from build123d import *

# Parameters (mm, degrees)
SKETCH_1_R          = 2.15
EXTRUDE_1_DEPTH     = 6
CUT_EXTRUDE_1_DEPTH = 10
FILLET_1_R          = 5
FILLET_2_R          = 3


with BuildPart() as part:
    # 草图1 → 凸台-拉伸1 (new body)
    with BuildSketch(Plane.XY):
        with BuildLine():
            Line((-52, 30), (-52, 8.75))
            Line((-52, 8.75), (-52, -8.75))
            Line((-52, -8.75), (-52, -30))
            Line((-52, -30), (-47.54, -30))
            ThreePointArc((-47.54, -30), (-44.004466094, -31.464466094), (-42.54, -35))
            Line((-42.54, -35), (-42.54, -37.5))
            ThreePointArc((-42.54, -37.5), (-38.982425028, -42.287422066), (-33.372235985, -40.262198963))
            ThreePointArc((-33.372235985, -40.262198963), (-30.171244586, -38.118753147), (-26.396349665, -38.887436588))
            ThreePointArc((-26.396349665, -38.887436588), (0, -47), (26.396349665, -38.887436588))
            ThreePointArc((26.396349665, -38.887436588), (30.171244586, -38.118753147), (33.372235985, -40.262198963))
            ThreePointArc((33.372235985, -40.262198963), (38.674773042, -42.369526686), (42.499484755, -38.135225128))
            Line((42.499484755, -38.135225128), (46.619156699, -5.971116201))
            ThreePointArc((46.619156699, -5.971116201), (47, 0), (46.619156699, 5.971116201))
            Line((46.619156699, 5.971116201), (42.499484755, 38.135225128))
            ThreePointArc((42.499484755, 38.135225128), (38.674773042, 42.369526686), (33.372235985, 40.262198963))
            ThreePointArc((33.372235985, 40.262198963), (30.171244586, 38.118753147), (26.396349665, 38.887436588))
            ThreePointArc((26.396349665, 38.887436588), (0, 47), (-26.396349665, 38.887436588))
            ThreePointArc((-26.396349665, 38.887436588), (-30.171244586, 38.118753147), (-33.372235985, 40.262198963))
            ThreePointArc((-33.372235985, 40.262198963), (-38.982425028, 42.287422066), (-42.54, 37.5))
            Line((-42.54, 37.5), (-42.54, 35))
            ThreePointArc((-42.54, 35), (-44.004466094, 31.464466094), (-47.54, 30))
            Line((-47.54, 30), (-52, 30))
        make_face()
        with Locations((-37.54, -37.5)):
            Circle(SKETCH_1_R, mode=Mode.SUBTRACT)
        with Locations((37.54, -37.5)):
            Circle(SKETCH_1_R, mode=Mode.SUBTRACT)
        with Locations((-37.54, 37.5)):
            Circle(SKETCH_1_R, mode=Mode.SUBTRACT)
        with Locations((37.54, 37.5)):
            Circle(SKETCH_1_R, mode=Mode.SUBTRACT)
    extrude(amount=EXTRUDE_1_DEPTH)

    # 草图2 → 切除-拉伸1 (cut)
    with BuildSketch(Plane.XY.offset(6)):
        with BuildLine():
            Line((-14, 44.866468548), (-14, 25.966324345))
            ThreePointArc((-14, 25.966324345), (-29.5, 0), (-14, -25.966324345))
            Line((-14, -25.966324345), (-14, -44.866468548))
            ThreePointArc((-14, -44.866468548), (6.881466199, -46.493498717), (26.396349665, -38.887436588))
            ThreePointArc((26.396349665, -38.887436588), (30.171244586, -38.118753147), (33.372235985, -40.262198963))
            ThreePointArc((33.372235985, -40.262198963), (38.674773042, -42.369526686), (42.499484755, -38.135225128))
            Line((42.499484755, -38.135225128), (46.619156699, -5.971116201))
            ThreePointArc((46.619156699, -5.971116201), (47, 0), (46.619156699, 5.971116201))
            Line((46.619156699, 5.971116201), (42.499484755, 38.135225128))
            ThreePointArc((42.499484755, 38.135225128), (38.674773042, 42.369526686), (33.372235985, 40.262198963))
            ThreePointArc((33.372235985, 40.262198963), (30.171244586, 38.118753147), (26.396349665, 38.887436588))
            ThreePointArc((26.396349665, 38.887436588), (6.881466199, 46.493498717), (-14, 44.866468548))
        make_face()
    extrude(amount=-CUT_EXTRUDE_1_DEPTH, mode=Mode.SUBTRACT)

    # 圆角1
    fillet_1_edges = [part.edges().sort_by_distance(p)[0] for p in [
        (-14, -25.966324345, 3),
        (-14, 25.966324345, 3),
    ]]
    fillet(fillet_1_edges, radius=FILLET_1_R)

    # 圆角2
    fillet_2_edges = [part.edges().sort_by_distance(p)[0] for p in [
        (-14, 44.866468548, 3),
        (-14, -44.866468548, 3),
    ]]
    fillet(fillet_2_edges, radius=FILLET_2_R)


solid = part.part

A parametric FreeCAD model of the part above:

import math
import FreeCAD as App
import Part
import Sketcher
Q = App.Units.Quantity


def edges_at(feature, points):
    """Names of the edges that pass closest to the given points."""
    edges = feature.Shape.Edges
    near = lambda p: min(range(len(edges)), key=lambda i: edges[i].distToShape(Part.Vertex(*p))[0])
    return sorted({f"Edge{near(p) + 1}" for p in points})

doc = App.newDocument("Part")
body = doc.addObject("PartDesign::Body", "Body")

# Sketch on XY plane
sketch1 = body.newObject("Sketcher::SketchObject", "Sketch")
sketch1.AttachmentSupport = (doc.getObject("XY_Plane"), [""])
sketch1.MapMode = "FlatFace"
sketch1.addGeometry(Part.LineSegment(App.Vector(-52, 30, 0), App.Vector(-52, -30, 0)), False)
sketch1.addGeometry(Part.LineSegment(App.Vector(-52, -30, 0), App.Vector(-47.5, -30, 0)), False)
sketch1.addGeometry(Part.ArcOfCircle(Part.Circle(App.Vector(-47.5, -35, 0), App.Vector(0, 0, 1), 5), math.radians(0), math.radians(90)), False)
sketch1.addGeometry(Part.LineSegment(App.Vector(-42.5, -35, 0), App.Vector(-42.5, -37.5, 0)), False)
sketch1.addGeometry(Part.ArcOfCircle(Part.Circle(App.Vector(-37.5, -37.5, 0), App.Vector(0, 0, 1), 5), math.radians(180), math.radians(326)), False)
sketch1.addGeometry(Part.ArcOfCircle(Part.Circle(App.Vector(-29.2, -43, 0), App.Vector(0, 0, 1), 5), math.radians(56), math.radians(146)), False)
sketch1.addGeometry(Part.ArcOfCircle(Part.Circle(App.Vector(0, 0, 0), App.Vector(0, 0, 1), 47), math.radians(-124), math.radians(-56)), False)
sketch1.addGeometry(Part.ArcOfCircle(Part.Circle(App.Vector(29.2, -43, 0), App.Vector(0, 0, 1), 5), math.radians(34), math.radians(124)), False)
sketch1.addGeometry(Part.ArcOfCircle(Part.Circle(App.Vector(37.5, -37.5, 0), App.Vector(0, 0, 1), 5), math.radians(-146), math.radians(-7)), False)
sketch1.addGeometry(Part.LineSegment(App.Vector(42.5, -38.1, 0), App.Vector(46.6, -6, 0)), False)
sketch1.addGeometry(Part.ArcOfCircle(Part.Circle(App.Vector(0, 0, 0), App.Vector(0, 0, 1), 47), math.radians(-7.3), math.radians(7.3)), False)
sketch1.addGeometry(Part.LineSegment(App.Vector(46.6, 6, 0), App.Vector(42.5, 38.1, 0)), False)
sketch1.addGeometry(Part.ArcOfCircle(Part.Circle(App.Vector(37.5, 37.5, 0), App.Vector(0, 0, 1), 5), math.radians(7), math.radians(146)), False)
sketch1.addGeometry(Part.ArcOfCircle(Part.Circle(App.Vector(29.2, 43, 0), App.Vector(0, 0, 1), 5), math.radians(-124), math.radians(-34)), False)
sketch1.addGeometry(Part.ArcOfCircle(Part.Circle(App.Vector(0, 0, 0), App.Vector(0, 0, 1), 47), math.radians(56), math.radians(124)), False)
sketch1.addGeometry(Part.ArcOfCircle(Part.Circle(App.Vector(-29.2, 43, 0), App.Vector(0, 0, 1), 5), math.radians(-146), math.radians(-56)), False)
sketch1.addGeometry(Part.ArcOfCircle(Part.Circle(App.Vector(-37.5, 37.5, 0), App.Vector(0, 0, 1), 5), math.radians(34), math.radians(180)), False)
sketch1.addGeometry(Part.LineSegment(App.Vector(-42.5, 37.5, 0), App.Vector(-42.5, 35, 0)), False)
sketch1.addGeometry(Part.ArcOfCircle(Part.Circle(App.Vector(-47.5, 35, 0), App.Vector(0, 0, 1), 5), math.radians(-90), math.radians(0)), False)
sketch1.addGeometry(Part.LineSegment(App.Vector(-47.5, 30, 0), App.Vector(-52, 30, 0)), False)
sketch1.addGeometry(Part.Circle(App.Vector(-37.5, -37.5, 0), App.Vector(0, 0, 1), 2.1), False)
sketch1.addGeometry(Part.Circle(App.Vector(37.5, -37.5, 0), App.Vector(0, 0, 1), 2.1), False)
sketch1.addGeometry(Part.Circle(App.Vector(-37.5, 37.5, 0), App.Vector(0, 0, 1), 2.1), False)
sketch1.addGeometry(Part.Circle(App.Vector(37.5, 37.5, 0), App.Vector(0, 0, 1), 2.1), False)
sketch1.addConstraint(Sketcher.Constraint("Coincident", 0, 2, 1, 1))
sketch1.addConstraint(Sketcher.Constraint("Tangent", 1, 2, 2, 2))
sketch1.addConstraint(Sketcher.Constraint("Tangent", 2, 1, 3, 1))
sketch1.addConstraint(Sketcher.Constraint("Tangent", 3, 2, 4, 1))
sketch1.addConstraint(Sketcher.Constraint("Tangent", 4, 2, 5, 2))
sketch1.addConstraint(Sketcher.Constraint("Tangent", 5, 1, 6, 1))
sketch1.addConstraint(Sketcher.Constraint("Tangent", 6, 2, 7, 2))
sketch1.addConstraint(Sketcher.Constraint("Tangent", 7, 1, 8, 1))
sketch1.addConstraint(Sketcher.Constraint("Tangent", 8, 2, 9, 1))
sketch1.addConstraint(Sketcher.Constraint("Tangent", 9, 2, 10, 1))
sketch1.addConstraint(Sketcher.Constraint("Tangent", 10, 2, 11, 1))
sketch1.addConstraint(Sketcher.Constraint("Tangent", 11, 2, 12, 1))
sketch1.addConstraint(Sketcher.Constraint("Tangent", 12, 2, 13, 2))
sketch1.addConstraint(Sketcher.Constraint("Tangent", 13, 1, 14, 1))
sketch1.addConstraint(Sketcher.Constraint("Tangent", 14, 2, 15, 2))
sketch1.addConstraint(Sketcher.Constraint("Tangent", 15, 1, 16, 1))
sketch1.addConstraint(Sketcher.Constraint("Tangent", 16, 2, 17, 1))
sketch1.addConstraint(Sketcher.Constraint("Tangent", 17, 2, 18, 2))
sketch1.addConstraint(Sketcher.Constraint("Tangent", 18, 1, 19, 1))
sketch1.addConstraint(Sketcher.Constraint("Coincident", 19, 2, 0, 1))
sketch1.addConstraint(Sketcher.Constraint("Vertical", 0))
sketch1.addConstraint(Sketcher.Constraint("Horizontal", 1))
sketch1.addConstraint(Sketcher.Constraint("Vertical", 3))
sketch1.addConstraint(Sketcher.Constraint("Vertical", 17))
sketch1.addConstraint(Sketcher.Constraint("Horizontal", 19))
sketch1.addConstraint(Sketcher.Constraint("Coincident", 6, 3, -1, 1))
sketch1.addConstraint(Sketcher.Constraint("Coincident", 10, 3, -1, 1))
sketch1.addConstraint(Sketcher.Constraint("Coincident", 14, 3, -1, 1))
sketch1.addConstraint(Sketcher.Constraint("Coincident", 20, 3, 4, 3))
sketch1.addConstraint(Sketcher.Constraint("Coincident", 21, 3, 8, 3))
sketch1.addConstraint(Sketcher.Constraint("Coincident", 22, 3, 16, 3))
sketch1.addConstraint(Sketcher.Constraint("Coincident", 23, 3, 12, 3))
sketch1.addConstraint(Sketcher.Constraint("Equal", 2, 4))
sketch1.addConstraint(Sketcher.Constraint("Equal", 4, 5))
sketch1.addConstraint(Sketcher.Constraint("Equal", 5, 7))
sketch1.addConstraint(Sketcher.Constraint("Equal", 7, 8))
sketch1.addConstraint(Sketcher.Constraint("Equal", 6, 10))
sketch1.addConstraint(Sketcher.Constraint("Equal", 8, 12))
sketch1.addConstraint(Sketcher.Constraint("Equal", 12, 13))
sketch1.addConstraint(Sketcher.Constraint("Equal", 10, 14))
sketch1.addConstraint(Sketcher.Constraint("Equal", 13, 15))
sketch1.addConstraint(Sketcher.Constraint("Equal", 15, 16))
sketch1.addConstraint(Sketcher.Constraint("Equal", 16, 18))
sketch1.addConstraint(Sketcher.Constraint("Equal", 20, 21))
sketch1.addConstraint(Sketcher.Constraint("Equal", 21, 22))
sketch1.addConstraint(Sketcher.Constraint("Equal", 22, 23))
sketch1.addConstraint(Sketcher.Constraint("Symmetric", 4, 3, 12, 3, -1, 1))
sketch1.addConstraint(Sketcher.Constraint("Symmetric", 8, 3, 16, 3, -1, 1))
sketch1.addConstraint(Sketcher.Constraint("Symmetric", 4, 3, 8, 3, -2))
sketch1.addConstraint(Sketcher.Constraint("Equal", 3, 17))
sketch1.addConstraint(Sketcher.Constraint("Radius", 2, Q("5 mm")))
sketch1.addConstraint(Sketcher.Constraint("Radius", 6, Q("47 mm")))
sketch1.addConstraint(Sketcher.Constraint("Diameter", 20, Q("4.3 mm")))
sketch1.addConstraint(Sketcher.Constraint("DistanceY", 0, 2, 0, 1, Q("60 mm")))
sketch1.addConstraint(Sketcher.Constraint("DistanceY", 3, 2, 3, 1, Q("2.5 mm")))
sketch1.addConstraint(Sketcher.Constraint("DistanceX", 0, 2, -1, 1, Q("52 mm")))
sketch1.addConstraint(Sketcher.Constraint("DistanceX", 1, 1, 1, 2, Q("4.46 mm")))
pad1 = body.newObject("PartDesign::Pad", "Pad")
pad1.Profile = sketch1
pad1.Length = 6

# Sketch on XY plane
sketch2 = body.newObject("Sketcher::SketchObject", "Sketch001")
sketch2.AttachmentSupport = (doc.getObject("XY_Plane"), [""])
sketch2.MapMode = "FlatFace"
sketch2.AttachmentOffset = App.Placement(App.Vector(0, 0, 6), App.Rotation())
sketch2.addGeometry(Part.LineSegment(App.Vector(-14, 44.9, 0), App.Vector(-14, 26, 0)), False)
sketch2.addGeometry(Part.ArcOfCircle(Part.Circle(App.Vector(0, 0, 0), App.Vector(0, 0, 1), 29.5), math.radians(118), math.radians(242)), False)
sketch2.addGeometry(Part.LineSegment(App.Vector(-14, -26, 0), App.Vector(-14, -44.9, 0)), False)
sketch2.addGeometry(Part.ArcOfCircle(Part.Circle(App.Vector(0, 0, 0), App.Vector(0, 0, 1), 47), math.radians(-107), math.radians(-56)), False)
sketch2.addGeometry(Part.ArcOfCircle(Part.Circle(App.Vector(29.2, -43, 0), App.Vector(0, 0, 1), 5), math.radians(34), math.radians(124)), False)
sketch2.addGeometry(Part.ArcOfCircle(Part.Circle(App.Vector(37.5, -37.5, 0), App.Vector(0, 0, 1), 5), math.radians(-146), math.radians(-7)), False)
sketch2.addGeometry(Part.LineSegment(App.Vector(42.5, -38.1, 0), App.Vector(46.6, -6, 0)), False)
sketch2.addGeometry(Part.ArcOfCircle(Part.Circle(App.Vector(0, 0, 0), App.Vector(0, 0, 1), 47), math.radians(-7.3), math.radians(7.3)), False)
sketch2.addGeometry(Part.LineSegment(App.Vector(46.6, 6, 0), App.Vector(42.5, 38.1, 0)), False)
sketch2.addGeometry(Part.ArcOfCircle(Part.Circle(App.Vector(37.5, 37.5, 0), App.Vector(0, 0, 1), 5), math.radians(7), math.radians(146)), False)
sketch2.addGeometry(Part.ArcOfCircle(Part.Circle(App.Vector(29.2, 43, 0), App.Vector(0, 0, 1), 5), math.radians(-124), math.radians(-34)), False)
sketch2.addGeometry(Part.ArcOfCircle(Part.Circle(App.Vector(0, 0, 0), App.Vector(0, 0, 1), 47), math.radians(56), math.radians(107)), False)
sketch2.addConstraint(Sketcher.Constraint("Coincident", 0, 2, 1, 1))
sketch2.addConstraint(Sketcher.Constraint("Coincident", 1, 2, 2, 1))
sketch2.addConstraint(Sketcher.Constraint("Coincident", 2, 2, 3, 1))
sketch2.addConstraint(Sketcher.Constraint("Tangent", 3, 2, 4, 2))
sketch2.addConstraint(Sketcher.Constraint("Tangent", 4, 1, 5, 1))
sketch2.addConstraint(Sketcher.Constraint("Tangent", 5, 2, 6, 1))
sketch2.addConstraint(Sketcher.Constraint("Tangent", 6, 2, 7, 1))
sketch2.addConstraint(Sketcher.Constraint("Tangent", 7, 2, 8, 1))
sketch2.addConstraint(Sketcher.Constraint("Tangent", 8, 2, 9, 1))
sketch2.addConstraint(Sketcher.Constraint("Tangent", 9, 2, 10, 2))
sketch2.addConstraint(Sketcher.Constraint("Tangent", 10, 1, 11, 1))
sketch2.addConstraint(Sketcher.Constraint("Coincident", 11, 2, 0, 1))
sketch2.addConstraint(Sketcher.Constraint("Vertical", 0))
sketch2.addConstraint(Sketcher.Constraint("Vertical", 2))
sketch2.addConstraint(Sketcher.Constraint("Coincident", 1, 3, -1, 1))
sketch2.addConstraint(Sketcher.Constraint("Coincident", 3, 3, -1, 1))
sketch2.addConstraint(Sketcher.Constraint("Coincident", 7, 3, -1, 1))
sketch2.addConstraint(Sketcher.Constraint("Coincident", 11, 3, -1, 1))
sketch2.addConstraint(Sketcher.Constraint("Equal", 4, 5))
sketch2.addConstraint(Sketcher.Constraint("Equal", 3, 7))
sketch2.addConstraint(Sketcher.Constraint("Equal", 5, 9))
sketch2.addConstraint(Sketcher.Constraint("Equal", 9, 10))
sketch2.addConstraint(Sketcher.Constraint("Equal", 7, 11))
sketch2.addConstraint(Sketcher.Constraint("Symmetric", 5, 3, 9, 3, -1))
sketch2.addConstraint(Sketcher.Constraint("Vertical", 0, 2, 1, 2))
sketch2.addConstraint(Sketcher.Constraint("Radius", 3, Q("47 mm")))
sketch2.addConstraint(Sketcher.Constraint("Radius", 4, Q("5 mm")))
sketch2.addConstraint(Sketcher.Constraint("Radius", 1, Q("29.5 mm")))
sketch2.addConstraint(Sketcher.Constraint("DistanceX", 0, 2, -1, 1, Q("14 mm")))
sketch2.addConstraint(Sketcher.Constraint("DistanceY", 5, 3, 9, 3, Q("75 mm")))
sketch2.addConstraint(Sketcher.Constraint("DistanceX", -1, 1, 5, 3, Q("37.54 mm")))
pocket1 = body.newObject("PartDesign::Pocket", "Pocket")
pocket1.Profile = sketch2
pocket1.Length = 10
doc.recompute()

fillet = body.newObject("PartDesign::Fillet", "Fillet")
fillet.Base = (pocket1, edges_at(pocket1, [(-14, -25.966, 3), (-14, 25.966, 3)]))
fillet.Radius = 5
doc.recompute()

fillet2 = body.newObject("PartDesign::Fillet", "Fillet001")
fillet2.Base = (fillet, edges_at(fillet, [(-14, 44.866, 3), (-14, -44.866, 3)]))
fillet2.Radius = 3

doc.recompute()
